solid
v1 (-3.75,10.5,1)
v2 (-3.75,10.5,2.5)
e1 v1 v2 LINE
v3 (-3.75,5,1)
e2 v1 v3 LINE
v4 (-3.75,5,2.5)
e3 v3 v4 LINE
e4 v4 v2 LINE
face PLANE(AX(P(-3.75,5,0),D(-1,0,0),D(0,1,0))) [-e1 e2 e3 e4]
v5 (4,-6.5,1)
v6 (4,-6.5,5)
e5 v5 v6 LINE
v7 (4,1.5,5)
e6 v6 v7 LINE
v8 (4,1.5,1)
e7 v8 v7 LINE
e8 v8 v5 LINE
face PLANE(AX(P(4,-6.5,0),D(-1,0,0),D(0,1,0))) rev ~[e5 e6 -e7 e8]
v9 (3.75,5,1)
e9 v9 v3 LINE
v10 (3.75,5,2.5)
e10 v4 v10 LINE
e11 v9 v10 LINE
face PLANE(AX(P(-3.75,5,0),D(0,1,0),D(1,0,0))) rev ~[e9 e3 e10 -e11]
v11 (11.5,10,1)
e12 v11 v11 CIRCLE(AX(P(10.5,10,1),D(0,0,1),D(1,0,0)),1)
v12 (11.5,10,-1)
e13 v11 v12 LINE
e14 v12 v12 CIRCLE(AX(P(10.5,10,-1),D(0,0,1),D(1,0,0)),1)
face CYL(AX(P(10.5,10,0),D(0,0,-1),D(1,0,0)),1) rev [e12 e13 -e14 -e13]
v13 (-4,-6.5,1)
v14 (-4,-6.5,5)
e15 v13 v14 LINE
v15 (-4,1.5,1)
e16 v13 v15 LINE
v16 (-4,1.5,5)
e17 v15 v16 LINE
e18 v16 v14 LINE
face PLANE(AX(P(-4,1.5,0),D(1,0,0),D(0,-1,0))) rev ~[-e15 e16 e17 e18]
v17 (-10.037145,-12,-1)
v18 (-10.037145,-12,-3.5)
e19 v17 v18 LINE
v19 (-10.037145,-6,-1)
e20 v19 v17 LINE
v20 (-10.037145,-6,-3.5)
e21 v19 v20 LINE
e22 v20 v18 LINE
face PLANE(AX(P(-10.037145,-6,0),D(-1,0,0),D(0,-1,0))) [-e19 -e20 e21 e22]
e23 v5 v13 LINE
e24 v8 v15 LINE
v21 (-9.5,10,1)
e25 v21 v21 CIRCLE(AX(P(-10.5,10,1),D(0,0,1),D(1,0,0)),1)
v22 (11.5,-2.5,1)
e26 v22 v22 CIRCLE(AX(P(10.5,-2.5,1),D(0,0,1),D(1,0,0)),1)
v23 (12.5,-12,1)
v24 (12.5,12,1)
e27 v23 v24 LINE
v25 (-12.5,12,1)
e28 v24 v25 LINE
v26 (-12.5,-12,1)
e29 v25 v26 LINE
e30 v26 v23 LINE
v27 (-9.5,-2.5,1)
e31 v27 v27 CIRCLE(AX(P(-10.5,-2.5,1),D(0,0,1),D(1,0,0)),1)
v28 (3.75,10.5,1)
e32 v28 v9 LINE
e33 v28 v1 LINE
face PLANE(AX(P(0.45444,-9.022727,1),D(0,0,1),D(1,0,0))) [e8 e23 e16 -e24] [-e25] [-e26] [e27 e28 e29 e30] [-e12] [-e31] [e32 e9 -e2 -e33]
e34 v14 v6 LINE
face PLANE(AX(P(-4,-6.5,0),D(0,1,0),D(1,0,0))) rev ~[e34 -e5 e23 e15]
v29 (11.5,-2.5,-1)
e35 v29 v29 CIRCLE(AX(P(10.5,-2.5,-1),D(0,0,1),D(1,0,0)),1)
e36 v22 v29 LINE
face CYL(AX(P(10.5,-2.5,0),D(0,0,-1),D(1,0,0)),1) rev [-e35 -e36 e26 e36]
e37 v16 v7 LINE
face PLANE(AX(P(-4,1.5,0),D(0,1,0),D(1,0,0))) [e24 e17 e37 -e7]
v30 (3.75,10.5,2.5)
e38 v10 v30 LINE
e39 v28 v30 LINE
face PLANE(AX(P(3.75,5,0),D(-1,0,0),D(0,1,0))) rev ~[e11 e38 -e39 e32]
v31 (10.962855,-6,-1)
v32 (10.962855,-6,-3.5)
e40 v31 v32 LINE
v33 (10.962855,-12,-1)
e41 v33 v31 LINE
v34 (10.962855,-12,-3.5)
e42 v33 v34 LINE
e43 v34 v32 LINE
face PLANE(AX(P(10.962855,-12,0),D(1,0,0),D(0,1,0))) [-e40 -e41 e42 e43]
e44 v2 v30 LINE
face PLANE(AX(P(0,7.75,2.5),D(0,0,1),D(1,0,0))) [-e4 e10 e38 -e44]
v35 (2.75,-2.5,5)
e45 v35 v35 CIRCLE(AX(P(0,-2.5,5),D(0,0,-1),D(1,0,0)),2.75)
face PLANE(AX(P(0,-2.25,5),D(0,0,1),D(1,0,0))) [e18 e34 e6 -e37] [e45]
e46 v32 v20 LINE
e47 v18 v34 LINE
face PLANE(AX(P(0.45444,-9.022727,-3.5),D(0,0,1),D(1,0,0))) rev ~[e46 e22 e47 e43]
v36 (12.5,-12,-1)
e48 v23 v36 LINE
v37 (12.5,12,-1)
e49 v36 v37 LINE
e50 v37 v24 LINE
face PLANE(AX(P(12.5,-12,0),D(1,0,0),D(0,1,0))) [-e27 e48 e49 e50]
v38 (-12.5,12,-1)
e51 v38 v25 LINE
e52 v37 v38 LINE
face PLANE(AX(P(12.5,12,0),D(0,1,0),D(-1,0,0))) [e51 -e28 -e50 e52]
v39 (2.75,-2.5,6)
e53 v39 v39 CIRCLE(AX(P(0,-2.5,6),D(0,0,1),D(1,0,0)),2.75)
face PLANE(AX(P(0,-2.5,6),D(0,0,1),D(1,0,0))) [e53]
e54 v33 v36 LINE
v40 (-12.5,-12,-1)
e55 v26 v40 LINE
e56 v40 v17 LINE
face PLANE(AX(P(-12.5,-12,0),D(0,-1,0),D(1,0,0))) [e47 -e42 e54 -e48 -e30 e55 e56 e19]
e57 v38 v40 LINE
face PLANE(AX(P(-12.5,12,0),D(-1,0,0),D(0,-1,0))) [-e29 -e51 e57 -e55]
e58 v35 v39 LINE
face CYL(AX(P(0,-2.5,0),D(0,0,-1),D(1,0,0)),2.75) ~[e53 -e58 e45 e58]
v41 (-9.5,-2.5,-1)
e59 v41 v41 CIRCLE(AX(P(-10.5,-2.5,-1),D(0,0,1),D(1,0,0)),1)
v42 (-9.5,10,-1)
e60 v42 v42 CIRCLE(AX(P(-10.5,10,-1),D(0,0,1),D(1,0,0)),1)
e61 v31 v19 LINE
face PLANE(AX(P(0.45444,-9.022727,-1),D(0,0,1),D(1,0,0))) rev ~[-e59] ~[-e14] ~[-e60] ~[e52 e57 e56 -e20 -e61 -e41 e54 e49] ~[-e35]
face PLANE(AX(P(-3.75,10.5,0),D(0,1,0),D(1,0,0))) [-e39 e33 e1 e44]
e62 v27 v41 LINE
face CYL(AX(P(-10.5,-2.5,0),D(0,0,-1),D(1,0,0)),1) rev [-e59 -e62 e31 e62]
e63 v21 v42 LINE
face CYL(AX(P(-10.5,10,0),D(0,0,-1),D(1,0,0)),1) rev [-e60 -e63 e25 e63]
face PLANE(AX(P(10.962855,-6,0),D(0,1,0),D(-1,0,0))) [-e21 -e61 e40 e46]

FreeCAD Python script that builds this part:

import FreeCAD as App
import Part
import Sketcher
from FreeCAD import Vector
Q = App.Units.Quantity


def add_polygon(sketch, points):
    """Adds a closed chain of lines whose ends are joined by coincident constraints."""
    first, n = sketch.GeometryCount, len(points)
    for a, b in zip(points, points[1:] + points[:1]):
        sketch.addGeometry(Part.LineSegment(App.Vector(*a, 0), App.Vector(*b, 0)), False)
    for i in range(n):
        sketch.addConstraint(Sketcher.Constraint("Coincident", first + i, 2, first + (i + 1) % n, 1))

doc = App.newDocument("Part")
body = doc.addObject("PartDesign::Body", "Body")

sketch1 = body.newObject("Sketcher::SketchObject", "Sketch")
sketch1.AttachmentSupport = (doc.getObject("XY_Plane"), [""])
sketch1.MapMode = "FlatFace"
add_polygon(sketch1, [(12.5, -12), (12.5, 12), (-12.5, 12), (-12.5, -12)])
sketch1.addGeometry(Part.Circle(Vector(-10.5, -2.5, 0), Vector(0, 0, 1), 1), False)
sketch1.addGeometry(Part.Circle(Vector(10.5, -2.5, 0), Vector(0, 0, 1), 1), False)
sketch1.addGeometry(Part.Circle(Vector(-10.5, 10, 0), Vector(0, 0, 1), 1), False)
sketch1.addGeometry(Part.Circle(Vector(10.5, 10, 0), Vector(0, 0, 1), 1), False)
sketch1.addConstraint([
    Sketcher.Constraint("Vertical", 0),
    Sketcher.Constraint("Horizontal", 1),
    Sketcher.Constraint("Vertical", 2),
    Sketcher.Constraint("Horizontal", 3),
    Sketcher.Constraint("Equal", 4, 5),
    Sketcher.Constraint("Equal", 5, 6),
    Sketcher.Constraint("Equal", 6, 7),
    Sketcher.Constraint("Symmetric", 0, 2, 2, 2, -1, 1),
    Sketcher.Constraint("Symmetric", 4, 3, 5, 3, -2),
    Sketcher.Constraint("Symmetric", 6, 3, 7, 3, -2),
    Sketcher.Constraint("Vertical", 4, 3, 6, 3),
    Sketcher.Constraint("Diameter", 4, Q("2 mm")),
    Sketcher.Constraint("DistanceX", 1, 2, 1, 1, Q("25 mm")),
    Sketcher.Constraint("DistanceY", 0, 1, 0, 2, Q("24 mm")),
    Sketcher.Constraint("DistanceY", -1, 1, 6, 3, Q("10 mm")),
    Sketcher.Constraint("DistanceX", 4, 3, 5, 3, Q("21 mm")),
    Sketcher.Constraint("DistanceY", 4, 3, -1, 1, Q("2.5 mm")),
])
pad1 = body.newObject("PartDesign::Pad", "Pad")
pad1.Profile = sketch1
pad1.Length = 2
pad1.Midplane = True

sketch2 = body.newObject("Sketcher::SketchObject", "Sketch001")
sketch2.AttachmentSupport = (doc.getObject("XY_Plane"), [""])
sketch2.MapMode = "FlatFace"
add_polygon(sketch2, [(-10, -6), (-10, -12), (11, -12), (11, -6)])
sketch2.addConstraint([
    Sketcher.Constraint("Vertical", 0),
    Sketcher.Constraint("Horizontal", 1),
    Sketcher.Constraint("Vertical", 2),
    Sketcher.Constraint("Horizontal", 3),
    Sketcher.Constraint("DistanceX", 1, 1, 1, 2, Q("21 mm")),
    Sketcher.Constraint("DistanceY", 0, 2, 0, 1, Q("6 mm")),
    Sketcher.Constraint("DistanceY", 0, 2, -1, 1, Q("12 mm")),
    Sketcher.Constraint("DistanceX", 0, 2, -1, 1, Q("10.037145 mm")),
])
pad2 = body.newObject("PartDesign::Pad", "Pad001")
pad2.Profile = sketch2
pad2.Length = 3.5
pad2.Reversed = True

sketch3 = body.newObject("Sketcher::SketchObject", "Sketch002")
sketch3.AttachmentSupport = (doc.getObject("XY_Plane"), [""])
sketch3.MapMode = "FlatFace"
add_polygon(sketch3, [(-4, 2), (-4, -6), (4, -6), (4, 2)])
sketch3.addConstraint([
    Sketcher.Constraint("Vertical", 0),
    Sketcher.Constraint("Horizontal", 1),
    Sketcher.Constraint("Vertical", 2),
    Sketcher.Constraint("Horizontal", 3),
    Sketcher.Constraint("Equal", 3, 0),
    Sketcher.Constraint("DistanceX", 1, 1, 1, 2, Q("8 mm")),
    Sketcher.Constraint("DistanceX", 0, 2, -1, 1, Q("4 mm")),
    Sketcher.Constraint("DistanceY", 0, 2, -1, 1, Q("6.5 mm")),
])
pad3 = body.newObject("PartDesign::Pad", "Pad002")
pad3.Profile = sketch3
pad3.Length = 5

sketch4 = body.newObject("Sketcher::SketchObject", "Sketch003")
sketch4.AttachmentSupport = (doc.getObject("XY_Plane"), [""])
sketch4.MapMode = "FlatFace"
sketch4.addGeometry(Part.Circle(Vector(0, -2.5, 0), Vector(0, 0, 1), 2.8), False)
sketch4.addConstraint([
    Sketcher.Constraint("PointOnObject", 0, 3, -2),
    Sketcher.Constraint("Diameter", 0, Q("5.5 mm")),
    Sketcher.Constraint("DistanceY", 0, 3, -1, 1, Q("2.5 mm")),
])
pad4 = body.newObject("PartDesign::Pad", "Pad003")
pad4.Profile = sketch4
pad4.Length = 6

sketch5 = body.newObject("Sketcher::SketchObject", "Sketch004")
sketch5.AttachmentSupport = (doc.getObject("XY_Plane"), [""])
sketch5.MapMode = "FlatFace"
add_polygon(sketch5, [(-4, 10), (-4, 5), (4, 5), (4, 10)])
sketch5.addConstraint([
    Sketcher.Constraint("Vertical", 0),
    Sketcher.Constraint("Horizontal", 1),
    Sketcher.Constraint("Vertical", 2),
    Sketcher.Constraint("Horizontal", 3),
    Sketcher.Constraint("DistanceX", 1, 1, 1, 2, Q("7.5 mm")),
    Sketcher.Constraint("DistanceY", 0, 2, 0, 1, Q("5.5 mm")),
    Sketcher.Constraint("DistanceY", -1, 1, 0, 2, Q("5 mm")),
    Sketcher.Constraint("DistanceX", 0, 2, -1, 1, Q("3.75 mm")),
])
pad5 = body.newObject("PartDesign::Pad", "Pad004")
pad5.Profile = sketch5
pad5.Length = 2.5

doc.recompute()
